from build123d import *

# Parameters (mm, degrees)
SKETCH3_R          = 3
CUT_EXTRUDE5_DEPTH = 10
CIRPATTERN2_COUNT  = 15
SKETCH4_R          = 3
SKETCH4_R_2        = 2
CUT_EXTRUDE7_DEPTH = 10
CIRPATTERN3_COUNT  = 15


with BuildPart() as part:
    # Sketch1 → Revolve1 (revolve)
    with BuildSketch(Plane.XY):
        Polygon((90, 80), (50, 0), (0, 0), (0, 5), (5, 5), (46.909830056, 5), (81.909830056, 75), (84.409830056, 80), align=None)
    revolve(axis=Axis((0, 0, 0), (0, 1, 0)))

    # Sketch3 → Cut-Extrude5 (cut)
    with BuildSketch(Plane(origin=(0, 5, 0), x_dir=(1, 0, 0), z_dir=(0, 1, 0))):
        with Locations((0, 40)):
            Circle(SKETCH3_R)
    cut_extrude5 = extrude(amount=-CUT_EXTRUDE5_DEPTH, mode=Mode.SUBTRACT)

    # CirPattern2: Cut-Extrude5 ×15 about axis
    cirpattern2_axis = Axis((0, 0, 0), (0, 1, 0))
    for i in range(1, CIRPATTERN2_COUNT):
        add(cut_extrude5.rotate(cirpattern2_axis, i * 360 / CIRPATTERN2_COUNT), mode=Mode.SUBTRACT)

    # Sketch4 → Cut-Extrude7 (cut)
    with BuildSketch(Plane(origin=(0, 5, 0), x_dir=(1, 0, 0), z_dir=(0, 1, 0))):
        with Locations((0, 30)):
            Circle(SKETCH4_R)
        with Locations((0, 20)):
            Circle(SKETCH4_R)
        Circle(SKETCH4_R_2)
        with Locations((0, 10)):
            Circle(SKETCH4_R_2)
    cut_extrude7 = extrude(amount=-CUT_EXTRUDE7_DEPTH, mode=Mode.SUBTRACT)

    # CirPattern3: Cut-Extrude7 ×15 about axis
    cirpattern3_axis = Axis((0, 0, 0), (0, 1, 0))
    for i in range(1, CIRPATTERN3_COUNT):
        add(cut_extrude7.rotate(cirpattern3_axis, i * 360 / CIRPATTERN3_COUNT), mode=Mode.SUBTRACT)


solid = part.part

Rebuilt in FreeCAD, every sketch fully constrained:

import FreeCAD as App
import Part
import Sketcher
from FreeCAD import Vector
Q = App.Units.Quantity


def add_polygon(sketch, points):
    """Adds a closed chain of lines whose ends are joined by coincident constraints."""
    first, n = sketch.GeometryCount, len(points)
    for a, b in zip(points, points[1:] + points[:1]):
        sketch.addGeometry(Part.LineSegment(App.Vector(*a, 0), App.Vector(*b, 0)), False)
    for i in range(n):
        sketch.addConstraint(Sketcher.Constraint("Coincident", first + i, 2, first + (i + 1) % n, 1))

doc = App.newDocument("Part")
body = doc.addObject("PartDesign::Body", "Body")

sketch1 = body.newObject("Sketcher::SketchObject", "Sketch")
sketch1.AttachmentSupport = (doc.getObject("XY_Plane"), [""])
sketch1.MapMode = "FlatFace"
add_polygon(sketch1, [(50, 0), (90, 80), (84, 80), (47, 5), (0, 5), (0, 0)])
sketch1.addConstraint(Sketcher.Constraint("Horizontal", 1))
sketch1.addConstraint(Sketcher.Constraint("Horizontal", 3))
sketch1.addConstraint(Sketcher.Constraint("Vertical", 4))
sketch1.addConstraint(Sketcher.Constraint("Horizontal", 5))
sketch1.addConstraint(Sketcher.Constraint("Coincident", 4, 2, -1, 1))
sketch1.addConstraint(Sketcher.Constraint("Parallel", 0, 2))
sketch1.addConstraint(Sketcher.Constraint("DistanceX", 5, 1, 5, 2, Q("50 mm")))
sketch1.addConstraint(Sketcher.Constraint("DistanceY", 4, 2, 4, 1, Q("5 mm")))
sketch1.addConstraint(Sketcher.Constraint("DistanceX", -1, 1, 0, 2, Q("90 mm")))
sketch1.addConstraint(Sketcher.Constraint("DistanceY", -1, 1, 0, 2, Q("80 mm")))
sketch1.addConstraint(Sketcher.Constraint("DistanceX", 1, 2, 1, 1, Q("5.59017 mm")))
revolution = body.newObject("PartDesign::Revolution", "Revolution")
revolution.Profile = sketch1
revolution.ReferenceAxis = (sketch1, ["V_Axis"])
revolution.Angle = 360

sketch2 = body.newObject("Sketcher::SketchObject", "Sketch001")
sketch2.AttachmentSupport = (doc.getObject("XZ_Plane"), [""])
sketch2.MapMode = "FlatFace"
sketch2.AttachmentOffset = App.Placement(Vector(0, 0, -5), App.Rotation())
sketch2.addGeometry(Part.Circle(Vector(0, -40, 0), Vector(0, 0, 1), 3), False)
sketch2.addConstraint(Sketcher.Constraint("PointOnObject", 0, 3, -2))
sketch2.addConstraint(Sketcher.Constraint("Diameter", 0, Q("6 mm")))
sketch2.addConstraint(Sketcher.Constraint("DistanceY", 0, 3, -1, 1, Q("40 mm")))
pocket1 = body.newObject("PartDesign::Pocket", "Pocket")
pocket1.Profile = sketch2
pocket1.Length = 10
pocket1.Reversed = True
doc.recompute()

polarpattern = body.newObject("PartDesign::PolarPattern", "PolarPattern")
polarpattern.Originals = [pocket1]
polarpattern.Axis = (doc.getObject("Y_Axis"), [""])
polarpattern.Angle = 360
polarpattern.Occurrences = 15
body.Tip = polarpattern

sketch3 = body.newObject("Sketcher::SketchObject", "Sketch002")
sketch3.AttachmentSupport = (doc.getObject("XZ_Plane"), [""])
sketch3.MapMode = "FlatFace"
sketch3.AttachmentOffset = App.Placement(Vector(0, 0, -5), App.Rotation())
sketch3.addGeometry(Part.Circle(Vector(0, -30, 0), Vector(0, 0, 1), 3), False)
sketch3.addGeometry(Part.Circle(Vector(0, -20, 0), Vector(0, 0, 1), 3), False)
sketch3.addGeometry(Part.Circle(Vector(0, 0, 0), Vector(0, 0, 1), 2), False)
sketch3.addGeometry(Part.Circle(Vector(0, -10, 0), Vector(0, 0, 1), 2), False)
sketch3.addConstraint(Sketcher.Constraint("Coincident", 2, 3, -1, 1))
sketch3.addConstraint(Sketcher.Constraint("Equal", 0, 1))
sketch3.addConstraint(Sketcher.Constraint("Equal", 2, 3))
sketch3.addConstraint(Sketcher.Constraint("PointOnObject", 0, 3, -2))
sketch3.addConstraint(Sketcher.Constraint("PointOnObject", 1, 3, -2))
sketch3.addConstraint(Sketcher.Constraint("PointOnObject", 3, 3, -2))
sketch3.addConstraint(Sketcher.Constraint("Diameter", 0, Q("6 mm")))
sketch3.addConstraint(Sketcher.Constraint("Diameter", 2, Q("4 mm")))
sketch3.addConstraint(Sketcher.Constraint("DistanceY", 0, 3, -1, 1, Q("30 mm")))
sketch3.addConstraint(Sketcher.Constraint("DistanceY", 1, 3, -1, 1, Q("20 mm")))
sketch3.addConstraint(Sketcher.Constraint("DistanceY", 3, 3, -1, 1, Q("10 mm")))
pocket2 = body.newObject("PartDesign::Pocket", "Pocket001")
pocket2.Profile = sketch3
pocket2.Length = 10
pocket2.Reversed = True
doc.recompute()

polarpattern2 = body.newObject("PartDesign::PolarPattern", "PolarPattern001")
polarpattern2.Originals = [pocket2]
polarpattern2.Axis = (doc.getObject("Y_Axis"), [""])
polarpattern2.Angle = 360
polarpattern2.Occurrences = 15
body.Tip = polarpattern2

doc.recompute()
